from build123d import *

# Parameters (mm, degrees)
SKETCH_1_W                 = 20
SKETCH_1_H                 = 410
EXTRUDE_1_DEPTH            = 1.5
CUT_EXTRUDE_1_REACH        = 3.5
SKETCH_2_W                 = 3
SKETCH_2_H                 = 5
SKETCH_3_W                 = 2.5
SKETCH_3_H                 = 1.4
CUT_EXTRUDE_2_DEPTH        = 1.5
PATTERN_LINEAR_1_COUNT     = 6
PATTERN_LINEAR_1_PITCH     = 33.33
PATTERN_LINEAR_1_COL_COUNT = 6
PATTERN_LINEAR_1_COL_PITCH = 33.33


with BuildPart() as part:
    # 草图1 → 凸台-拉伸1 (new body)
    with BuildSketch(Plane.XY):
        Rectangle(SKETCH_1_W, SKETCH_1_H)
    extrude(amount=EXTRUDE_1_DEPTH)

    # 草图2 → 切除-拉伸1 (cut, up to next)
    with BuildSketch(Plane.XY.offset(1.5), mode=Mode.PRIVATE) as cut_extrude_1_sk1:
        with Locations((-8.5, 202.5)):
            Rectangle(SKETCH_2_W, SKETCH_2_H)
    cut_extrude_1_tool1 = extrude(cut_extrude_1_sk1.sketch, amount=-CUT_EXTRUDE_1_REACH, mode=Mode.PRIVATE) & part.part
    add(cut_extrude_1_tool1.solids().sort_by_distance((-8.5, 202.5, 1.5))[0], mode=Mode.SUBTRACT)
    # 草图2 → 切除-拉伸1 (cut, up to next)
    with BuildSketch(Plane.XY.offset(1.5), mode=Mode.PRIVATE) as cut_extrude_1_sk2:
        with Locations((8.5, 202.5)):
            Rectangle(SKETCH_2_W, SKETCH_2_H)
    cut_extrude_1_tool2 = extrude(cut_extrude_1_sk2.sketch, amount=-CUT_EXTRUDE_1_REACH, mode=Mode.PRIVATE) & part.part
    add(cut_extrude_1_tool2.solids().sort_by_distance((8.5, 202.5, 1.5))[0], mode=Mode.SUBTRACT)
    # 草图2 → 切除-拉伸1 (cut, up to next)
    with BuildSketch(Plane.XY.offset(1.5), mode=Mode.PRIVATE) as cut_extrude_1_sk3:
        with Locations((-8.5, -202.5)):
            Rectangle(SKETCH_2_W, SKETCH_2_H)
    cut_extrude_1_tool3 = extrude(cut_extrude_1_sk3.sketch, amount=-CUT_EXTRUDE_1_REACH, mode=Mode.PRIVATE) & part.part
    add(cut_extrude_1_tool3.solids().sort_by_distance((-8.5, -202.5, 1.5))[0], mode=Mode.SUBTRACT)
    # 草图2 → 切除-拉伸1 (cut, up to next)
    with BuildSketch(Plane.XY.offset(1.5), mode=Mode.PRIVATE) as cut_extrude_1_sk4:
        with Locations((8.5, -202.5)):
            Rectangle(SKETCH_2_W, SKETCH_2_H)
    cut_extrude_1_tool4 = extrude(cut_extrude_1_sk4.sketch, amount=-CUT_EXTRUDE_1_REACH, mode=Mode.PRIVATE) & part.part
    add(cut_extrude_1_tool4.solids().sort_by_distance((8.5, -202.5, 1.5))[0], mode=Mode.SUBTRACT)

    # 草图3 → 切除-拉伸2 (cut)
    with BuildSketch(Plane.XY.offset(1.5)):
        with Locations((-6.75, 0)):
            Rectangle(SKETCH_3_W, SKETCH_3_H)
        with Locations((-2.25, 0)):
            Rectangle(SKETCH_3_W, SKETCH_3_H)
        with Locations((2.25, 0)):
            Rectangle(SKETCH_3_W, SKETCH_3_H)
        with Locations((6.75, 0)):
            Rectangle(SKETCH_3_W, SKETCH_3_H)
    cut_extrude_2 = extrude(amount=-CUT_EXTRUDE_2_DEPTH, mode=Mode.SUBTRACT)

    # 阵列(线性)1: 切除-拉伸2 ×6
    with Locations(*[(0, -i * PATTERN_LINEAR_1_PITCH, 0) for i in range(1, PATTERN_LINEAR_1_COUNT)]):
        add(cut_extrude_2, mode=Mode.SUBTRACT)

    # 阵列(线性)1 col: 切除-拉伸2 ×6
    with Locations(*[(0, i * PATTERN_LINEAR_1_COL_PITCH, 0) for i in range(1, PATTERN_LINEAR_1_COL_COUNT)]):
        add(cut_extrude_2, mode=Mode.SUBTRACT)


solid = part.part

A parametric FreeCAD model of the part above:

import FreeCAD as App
import Part
import Sketcher
from FreeCAD import Vector

doc = App.newDocument("Part")
body = doc.addObject("PartDesign::Body", "Body")

# Sketch on XY plane
sketch1 = doc.addObject("Sketcher::SketchObject", "Sketch")
body.addObject(sketch1)
sketch1.AttachmentSupport = (doc.XY_Plane, [""])
sketch1.MapMode = "FlatFace"
sketch1.addGeometry([
    Part.LineSegment(Vector(-10, 205, 0), Vector(-10, -205, 0)),
    Part.LineSegment(Vector(-10, -205, 0), Vector(10, -205, 0)),
    Part.LineSegment(Vector(10, -205, 0), Vector(10, 205, 0)),
    Part.LineSegment(Vector(10, 205, 0), Vector(-10, 205, 0)),
], False)
sketch1.addConstraint([
    Sketcher.Constraint("Coincident", 0, 2, 1, 1),
    Sketcher.Constraint("Coincident", 1, 2, 2, 1),
    Sketcher.Constraint("Coincident", 2, 2, 3, 1),
    Sketcher.Constraint("Coincident", 3, 2, 0, 1),
    Sketcher.Constraint("Vertical", 0),
    Sketcher.Constraint("Horizontal", 1),
    Sketcher.Constraint("Vertical", 2),
    Sketcher.Constraint("Horizontal", 3),
    Sketcher.Constraint("Symmetric", 0, 2, 2, 2, -1, 1),
    Sketcher.Constraint("DistanceX", 1, 1, 1, 2, 20.0),
    Sketcher.Constraint("DistanceY", 0, 2, 0, 1, 410.0),
])
pad1 = doc.addObject("PartDesign::Pad", "Pad")
body.addObject(pad1)
pad1.Profile = sketch1
pad1.Length = 1.5

# Sketch on XY plane
sketch2 = doc.addObject("Sketcher::SketchObject", "Sketch001")
body.addObject(sketch2)
sketch2.AttachmentSupport = (doc.XY_Plane, [""])
sketch2.MapMode = "FlatFace"
sketch2.AttachmentOffset = App.Placement(Vector(0, 0, 1.5), App.Rotation())
sketch2.addGeometry([
    Part.LineSegment(Vector(-10, 205, 0), Vector(-10, 200, 0)),
    Part.LineSegment(Vector(-10, 200, 0), Vector(-7, 200, 0)),
    Part.LineSegment(Vector(-7, 200, 0), Vector(-7, 205, 0)),
    Part.LineSegment(Vector(-7, 205, 0), Vector(-10, 205, 0)),
], False)
sketch2.addConstraint([
    Sketcher.Constraint("Coincident", 0, 2, 1, 1),
    Sketcher.Constraint("Coincident", 1, 2, 2, 1),
    Sketcher.Constraint("Coincident", 2, 2, 3, 1),
    Sketcher.Constraint("Coincident", 3, 2, 0, 1),
    Sketcher.Constraint("Vertical", 0),
    Sketcher.Constraint("Horizontal", 1),
    Sketcher.Constraint("Vertical", 2),
    Sketcher.Constraint("Horizontal", 3),
    Sketcher.Constraint("DistanceX", 1, 1, 1, 2, 3.0),
    Sketcher.Constraint("DistanceY", 0, 2, 0, 1, 5.0),
    Sketcher.Constraint("DistanceX", 0, 2, -1, 1, 10.0),
    Sketcher.Constraint("DistanceY", -1, 1, 0, 2, 200.0),
])
pocket1 = doc.addObject("PartDesign::Pocket", "Pocket")
body.addObject(pocket1)
pocket1.Profile = sketch2
pocket1.Type = "UpToFirst"

# Sketch on XY plane
sketch3 = doc.addObject("Sketcher::SketchObject", "Sketch002")
body.addObject(sketch3)
sketch3.AttachmentSupport = (doc.XY_Plane, [""])
sketch3.MapMode = "FlatFace"
sketch3.AttachmentOffset = App.Placement(Vector(0, 0, 1.5), App.Rotation())
sketch3.addGeometry([
    Part.LineSegment(Vector(7, 205, 0), Vector(7, 200, 0)),
    Part.LineSegment(Vector(7, 200, 0), Vector(10, 200, 0)),
    Part.LineSegment(Vector(10, 200, 0), Vector(10, 205, 0)),
    Part.LineSegment(Vector(10, 205, 0), Vector(7, 205, 0)),
], False)
sketch3.addConstraint([
    Sketcher.Constraint("Coincident", 0, 2, 1, 1),
    Sketcher.Constraint("Coincident", 1, 2, 2, 1),
    Sketcher.Constraint("Coincident", 2, 2, 3, 1),
    Sketcher.Constraint("Coincident", 3, 2, 0, 1),
    Sketcher.Constraint("Vertical", 0),
    Sketcher.Constraint("Horizontal", 1),
    Sketcher.Constraint("Vertical", 2),
    Sketcher.Constraint("Horizontal", 3),
    Sketcher.Constraint("DistanceX", 1, 1, 1, 2, 3.0),
    Sketcher.Constraint("DistanceY", 0, 2, 0, 1, 5.0),
    Sketcher.Constraint("DistanceX", -1, 1, 0, 2, 7.0),
    Sketcher.Constraint("DistanceY", -1, 1, 0, 2, 200.0),
])
pocket2 = doc.addObject("PartDesign::Pocket", "Pocket001")
body.addObject(pocket2)
pocket2.Profile = sketch3
pocket2.Type = "UpToFirst"

# Sketch on XY plane
sketch4 = doc.addObject("Sketcher::SketchObject", "Sketch003")
body.addObject(sketch4)
sketch4.AttachmentSupport = (doc.XY_Plane, [""])
sketch4.MapMode = "FlatFace"
sketch4.AttachmentOffset = App.Placement(Vector(0, 0, 1.5), App.Rotation())
sketch4.addGeometry([
    Part.LineSegment(Vector(-10, -200, 0), Vector(-10, -205, 0)),
    Part.LineSegment(Vector(-10, -205, 0), Vector(-7, -205, 0)),
    Part.LineSegment(Vector(-7, -205, 0), Vector(-7, -200, 0)),
    Part.LineSegment(Vector(-7, -200, 0), Vector(-10, -200, 0)),
], False)
sketch4.addConstraint([
    Sketcher.Constraint("Coincident", 0, 2, 1, 1),
    Sketcher.Constraint("Coincident", 1, 2, 2, 1),
    Sketcher.Constraint("Coincident", 2, 2, 3, 1),
    Sketcher.Constraint("Coincident", 3, 2, 0, 1),
    Sketcher.Constraint("Vertical", 0),
    Sketcher.Constraint("Horizontal", 1),
    Sketcher.Constraint("Vertical", 2),
    Sketcher.Constraint("Horizontal", 3),
    Sketcher.Constraint("DistanceX", 1, 1, 1, 2, 3.0),
    Sketcher.Constraint("DistanceY", 0, 2, 0, 1, 5.0),
    Sketcher.Constraint("DistanceX", 0, 2, -1, 1, 10.0),
    Sketcher.Constraint("DistanceY", 0, 2, -1, 1, 205.0),
])
pocket3 = doc.addObject("PartDesign::Pocket", "Pocket002")
body.addObject(pocket3)
pocket3.Profile = sketch4
pocket3.Type = "UpToFirst"

# Sketch on XY plane
sketch5 = doc.addObject("Sketcher::SketchObject", "Sketch004")
body.addObject(sketch5)
sketch5.AttachmentSupport = (doc.XY_Plane, [""])
sketch5.MapMode = "FlatFace"
sketch5.AttachmentOffset = App.Placement(Vector(0, 0, 1.5), App.Rotation())
sketch5.addGeometry([
    Part.LineSegment(Vector(7, -200, 0), Vector(7, -205, 0)),
    Part.LineSegment(Vector(7, -205, 0), Vector(10, -205, 0)),
    Part.LineSegment(Vector(10, -205, 0), Vector(10, -200, 0)),
    Part.LineSegment(Vector(10, -200, 0), Vector(7, -200, 0)),
], False)
sketch5.addConstraint([
    Sketcher.Constraint("Coincident", 0, 2, 1, 1),
    Sketcher.Constraint("Coincident", 1, 2, 2, 1),
    Sketcher.Constraint("Coincident", 2, 2, 3, 1),
    Sketcher.Constraint("Coincident", 3, 2, 0, 1),
    Sketcher.Constraint("Vertical", 0),
    Sketcher.Constraint("Horizontal", 1),
    Sketcher.Constraint("Vertical", 2),
    Sketcher.Constraint("Horizontal", 3),
    Sketcher.Constraint("DistanceX", 1, 1, 1, 2, 3.0),
    Sketcher.Constraint("DistanceY", 0, 2, 0, 1, 5.0),
    Sketcher.Constraint("DistanceX", -1, 1, 0, 2, 7.0),
    Sketcher.Constraint("DistanceY", 0, 2, -1, 1, 205.0),
])
pocket4 = doc.addObject("PartDesign::Pocket", "Pocket003")
body.addObject(pocket4)
pocket4.Profile = sketch5
pocket4.Type = "UpToFirst"

# Sketch on XY plane
sketch6 = doc.addObject("Sketcher::SketchObject", "Sketch005")
body.addObject(sketch6)
sketch6.AttachmentSupport = (doc.XY_Plane, [""])
sketch6.MapMode = "FlatFace"
sketch6.AttachmentOffset = App.Placement(Vector(0, 0, 1.5), App.Rotation())
sketch6.addGeometry([
    Part.LineSegment(Vector(-8, 0.7, 0), Vector(-8, -0.7, 0)),  # 0
    Part.LineSegment(Vector(-8, -0.7, 0), Vector(-5.5, -0.7, 0)),  # 1
    Part.LineSegment(Vector(-5.5, -0.7, 0), Vector(-5.5, 0.7, 0)),  # 2
    Part.LineSegment(Vector(-5.5, 0.7, 0), Vector(-8, 0.7, 0)),  # 3
    Part.LineSegment(Vector(-3.5, 0.7, 0), Vector(-3.5, -0.7, 0)),  # 4
    Part.LineSegment(Vector(-3.5, -0.7, 0), Vector(-1, -0.7, 0)),  # 5
    Part.LineSegment(Vector(-1, -0.7, 0), Vector(-1, 0.7, 0)),  # 6
    Part.LineSegment(Vector(-1, 0.7, 0), Vector(-3.5, 0.7, 0)),  # 7
    Part.LineSegment(Vector(1, 0.7, 0), Vector(1, -0.7, 0)),  # 8
    Part.LineSegment(Vector(1, -0.7, 0), Vector(3.5, -0.7, 0)),  # 9
    Part.LineSegment(Vector(3.5, -0.7, 0), Vector(3.5, 0.7, 0)),  # 10
    Part.LineSegment(Vector(3.5, 0.7, 0), Vector(1, 0.7, 0)),  # 11
    Part.LineSegment(Vector(5.5, 0.7, 0), Vector(5.5, -0.7, 0)),  # 12
    Part.LineSegment(Vector(5.5, -0.7, 0), Vector(8, -0.7, 0)),  # 13
    Part.LineSegment(Vector(8, -0.7, 0), Vector(8, 0.7, 0)),  # 14
    Part.LineSegment(Vector(8, 0.7, 0), Vector(5.5, 0.7, 0)),  # 15
], False)
sketch6.addConstraint([
    Sketcher.Constraint("Coincident", 0, 2, 1, 1),
    Sketcher.Constraint("Coincident", 1, 2, 2, 1),
    Sketcher.Constraint("Coincident", 2, 2, 3, 1),
    Sketcher.Constraint("Coincident", 3, 2, 0, 1),
    Sketcher.Constraint("Coincident", 4, 2, 5, 1),
    Sketcher.Constraint("Coincident", 5, 2, 6, 1),
    Sketcher.Constraint("Coincident", 6, 2, 7, 1),
    Sketcher.Constraint("Coincident", 7, 2, 4, 1),
    Sketcher.Constraint("Coincident", 8, 2, 9, 1),
    Sketcher.Constraint("Coincident", 9, 2, 10, 1),
    Sketcher.Constraint("Coincident", 10, 2, 11, 1),
    Sketcher.Constraint("Coincident", 11, 2, 8, 1),
    Sketcher.Constraint("Coincident", 12, 2, 13, 1),
    Sketcher.Constraint("Coincident", 13, 2, 14, 1),
    Sketcher.Constraint("Coincident", 14, 2, 15, 1),
    Sketcher.Constraint("Coincident", 15, 2, 12, 1),
    Sketcher.Constraint("Vertical", 0),
    Sketcher.Constraint("Horizontal", 1),
    Sketcher.Constraint("Vertical", 2),
    Sketcher.Constraint("Horizontal", 3),
    Sketcher.Constraint("Vertical", 4),
    Sketcher.Constraint("Horizontal", 5),
    Sketcher.Constraint("Vertical", 6),
    Sketcher.Constraint("Horizontal", 7),
    Sketcher.Constraint("Vertical", 8),
    Sketcher.Constraint("Horizontal", 9),
    Sketcher.Constraint("Vertical", 10),
    Sketcher.Constraint("Horizontal", 11),
    Sketcher.Constraint("Vertical", 12),
    Sketcher.Constraint("Horizontal", 13),
    Sketcher.Constraint("Vertical", 14),
    Sketcher.Constraint("Horizontal", 15),
    Sketcher.Constraint("Symmetric", 6, 2, 8, 2, -1, 1),
    Sketcher.Constraint("Symmetric", 4, 2, 10, 2, -1, 1),
    Sketcher.Constraint("Symmetric", 2, 2, 12, 2, -1, 1),
    Sketcher.Constraint("Symmetric", 0, 2, 14, 2, -1, 1),
    Sketcher.Constraint("Horizontal", 1, 2, 4, 2),
    Sketcher.Constraint("Horizontal", 3, 2, 6, 2),
    Sketcher.Constraint("Horizontal", 5, 2, 8, 2),
    Sketcher.Constraint("Equal", 3, 5),
    Sketcher.Constraint("DistanceX", 1, 1, 1, 2, 2.5),
    Sketcher.Constraint("DistanceY", 0, 2, 0, 1, 1.4),
    Sketcher.Constraint("DistanceX", 0, 2, -1, 1, 8.0),
    Sketcher.Constraint("DistanceX", 5, 2, -1, 1, 1.0),
])
pocket5 = doc.addObject("PartDesign::Pocket", "Pocket004")
body.addObject(pocket5)
pocket5.Profile = sketch6
pocket5.Length = 1.5
doc.recompute()

linearpattern = doc.addObject("PartDesign::LinearPattern", "LinearPattern")
body.addObject(linearpattern)
linearpattern.Originals = [pocket5]
linearpattern.Direction = (doc.Y_Axis, [""])
linearpattern.Mode = "offset"
linearpattern.Offset = 33.33
linearpattern.Occurrences = 6
linearpattern.Reversed = True
body.Tip = linearpattern
doc.recompute()

linearpattern2 = doc.addObject("PartDesign::LinearPattern", "LinearPattern001")
body.addObject(linearpattern2)
linearpattern2.Originals = [pocket5]
linearpattern2.Direction = (doc.Y_Axis, [""])
linearpattern2.Mode = "offset"
linearpattern2.Offset = 33.33
linearpattern2.Occurrences = 6
body.Tip = linearpattern2

doc.recompute()
